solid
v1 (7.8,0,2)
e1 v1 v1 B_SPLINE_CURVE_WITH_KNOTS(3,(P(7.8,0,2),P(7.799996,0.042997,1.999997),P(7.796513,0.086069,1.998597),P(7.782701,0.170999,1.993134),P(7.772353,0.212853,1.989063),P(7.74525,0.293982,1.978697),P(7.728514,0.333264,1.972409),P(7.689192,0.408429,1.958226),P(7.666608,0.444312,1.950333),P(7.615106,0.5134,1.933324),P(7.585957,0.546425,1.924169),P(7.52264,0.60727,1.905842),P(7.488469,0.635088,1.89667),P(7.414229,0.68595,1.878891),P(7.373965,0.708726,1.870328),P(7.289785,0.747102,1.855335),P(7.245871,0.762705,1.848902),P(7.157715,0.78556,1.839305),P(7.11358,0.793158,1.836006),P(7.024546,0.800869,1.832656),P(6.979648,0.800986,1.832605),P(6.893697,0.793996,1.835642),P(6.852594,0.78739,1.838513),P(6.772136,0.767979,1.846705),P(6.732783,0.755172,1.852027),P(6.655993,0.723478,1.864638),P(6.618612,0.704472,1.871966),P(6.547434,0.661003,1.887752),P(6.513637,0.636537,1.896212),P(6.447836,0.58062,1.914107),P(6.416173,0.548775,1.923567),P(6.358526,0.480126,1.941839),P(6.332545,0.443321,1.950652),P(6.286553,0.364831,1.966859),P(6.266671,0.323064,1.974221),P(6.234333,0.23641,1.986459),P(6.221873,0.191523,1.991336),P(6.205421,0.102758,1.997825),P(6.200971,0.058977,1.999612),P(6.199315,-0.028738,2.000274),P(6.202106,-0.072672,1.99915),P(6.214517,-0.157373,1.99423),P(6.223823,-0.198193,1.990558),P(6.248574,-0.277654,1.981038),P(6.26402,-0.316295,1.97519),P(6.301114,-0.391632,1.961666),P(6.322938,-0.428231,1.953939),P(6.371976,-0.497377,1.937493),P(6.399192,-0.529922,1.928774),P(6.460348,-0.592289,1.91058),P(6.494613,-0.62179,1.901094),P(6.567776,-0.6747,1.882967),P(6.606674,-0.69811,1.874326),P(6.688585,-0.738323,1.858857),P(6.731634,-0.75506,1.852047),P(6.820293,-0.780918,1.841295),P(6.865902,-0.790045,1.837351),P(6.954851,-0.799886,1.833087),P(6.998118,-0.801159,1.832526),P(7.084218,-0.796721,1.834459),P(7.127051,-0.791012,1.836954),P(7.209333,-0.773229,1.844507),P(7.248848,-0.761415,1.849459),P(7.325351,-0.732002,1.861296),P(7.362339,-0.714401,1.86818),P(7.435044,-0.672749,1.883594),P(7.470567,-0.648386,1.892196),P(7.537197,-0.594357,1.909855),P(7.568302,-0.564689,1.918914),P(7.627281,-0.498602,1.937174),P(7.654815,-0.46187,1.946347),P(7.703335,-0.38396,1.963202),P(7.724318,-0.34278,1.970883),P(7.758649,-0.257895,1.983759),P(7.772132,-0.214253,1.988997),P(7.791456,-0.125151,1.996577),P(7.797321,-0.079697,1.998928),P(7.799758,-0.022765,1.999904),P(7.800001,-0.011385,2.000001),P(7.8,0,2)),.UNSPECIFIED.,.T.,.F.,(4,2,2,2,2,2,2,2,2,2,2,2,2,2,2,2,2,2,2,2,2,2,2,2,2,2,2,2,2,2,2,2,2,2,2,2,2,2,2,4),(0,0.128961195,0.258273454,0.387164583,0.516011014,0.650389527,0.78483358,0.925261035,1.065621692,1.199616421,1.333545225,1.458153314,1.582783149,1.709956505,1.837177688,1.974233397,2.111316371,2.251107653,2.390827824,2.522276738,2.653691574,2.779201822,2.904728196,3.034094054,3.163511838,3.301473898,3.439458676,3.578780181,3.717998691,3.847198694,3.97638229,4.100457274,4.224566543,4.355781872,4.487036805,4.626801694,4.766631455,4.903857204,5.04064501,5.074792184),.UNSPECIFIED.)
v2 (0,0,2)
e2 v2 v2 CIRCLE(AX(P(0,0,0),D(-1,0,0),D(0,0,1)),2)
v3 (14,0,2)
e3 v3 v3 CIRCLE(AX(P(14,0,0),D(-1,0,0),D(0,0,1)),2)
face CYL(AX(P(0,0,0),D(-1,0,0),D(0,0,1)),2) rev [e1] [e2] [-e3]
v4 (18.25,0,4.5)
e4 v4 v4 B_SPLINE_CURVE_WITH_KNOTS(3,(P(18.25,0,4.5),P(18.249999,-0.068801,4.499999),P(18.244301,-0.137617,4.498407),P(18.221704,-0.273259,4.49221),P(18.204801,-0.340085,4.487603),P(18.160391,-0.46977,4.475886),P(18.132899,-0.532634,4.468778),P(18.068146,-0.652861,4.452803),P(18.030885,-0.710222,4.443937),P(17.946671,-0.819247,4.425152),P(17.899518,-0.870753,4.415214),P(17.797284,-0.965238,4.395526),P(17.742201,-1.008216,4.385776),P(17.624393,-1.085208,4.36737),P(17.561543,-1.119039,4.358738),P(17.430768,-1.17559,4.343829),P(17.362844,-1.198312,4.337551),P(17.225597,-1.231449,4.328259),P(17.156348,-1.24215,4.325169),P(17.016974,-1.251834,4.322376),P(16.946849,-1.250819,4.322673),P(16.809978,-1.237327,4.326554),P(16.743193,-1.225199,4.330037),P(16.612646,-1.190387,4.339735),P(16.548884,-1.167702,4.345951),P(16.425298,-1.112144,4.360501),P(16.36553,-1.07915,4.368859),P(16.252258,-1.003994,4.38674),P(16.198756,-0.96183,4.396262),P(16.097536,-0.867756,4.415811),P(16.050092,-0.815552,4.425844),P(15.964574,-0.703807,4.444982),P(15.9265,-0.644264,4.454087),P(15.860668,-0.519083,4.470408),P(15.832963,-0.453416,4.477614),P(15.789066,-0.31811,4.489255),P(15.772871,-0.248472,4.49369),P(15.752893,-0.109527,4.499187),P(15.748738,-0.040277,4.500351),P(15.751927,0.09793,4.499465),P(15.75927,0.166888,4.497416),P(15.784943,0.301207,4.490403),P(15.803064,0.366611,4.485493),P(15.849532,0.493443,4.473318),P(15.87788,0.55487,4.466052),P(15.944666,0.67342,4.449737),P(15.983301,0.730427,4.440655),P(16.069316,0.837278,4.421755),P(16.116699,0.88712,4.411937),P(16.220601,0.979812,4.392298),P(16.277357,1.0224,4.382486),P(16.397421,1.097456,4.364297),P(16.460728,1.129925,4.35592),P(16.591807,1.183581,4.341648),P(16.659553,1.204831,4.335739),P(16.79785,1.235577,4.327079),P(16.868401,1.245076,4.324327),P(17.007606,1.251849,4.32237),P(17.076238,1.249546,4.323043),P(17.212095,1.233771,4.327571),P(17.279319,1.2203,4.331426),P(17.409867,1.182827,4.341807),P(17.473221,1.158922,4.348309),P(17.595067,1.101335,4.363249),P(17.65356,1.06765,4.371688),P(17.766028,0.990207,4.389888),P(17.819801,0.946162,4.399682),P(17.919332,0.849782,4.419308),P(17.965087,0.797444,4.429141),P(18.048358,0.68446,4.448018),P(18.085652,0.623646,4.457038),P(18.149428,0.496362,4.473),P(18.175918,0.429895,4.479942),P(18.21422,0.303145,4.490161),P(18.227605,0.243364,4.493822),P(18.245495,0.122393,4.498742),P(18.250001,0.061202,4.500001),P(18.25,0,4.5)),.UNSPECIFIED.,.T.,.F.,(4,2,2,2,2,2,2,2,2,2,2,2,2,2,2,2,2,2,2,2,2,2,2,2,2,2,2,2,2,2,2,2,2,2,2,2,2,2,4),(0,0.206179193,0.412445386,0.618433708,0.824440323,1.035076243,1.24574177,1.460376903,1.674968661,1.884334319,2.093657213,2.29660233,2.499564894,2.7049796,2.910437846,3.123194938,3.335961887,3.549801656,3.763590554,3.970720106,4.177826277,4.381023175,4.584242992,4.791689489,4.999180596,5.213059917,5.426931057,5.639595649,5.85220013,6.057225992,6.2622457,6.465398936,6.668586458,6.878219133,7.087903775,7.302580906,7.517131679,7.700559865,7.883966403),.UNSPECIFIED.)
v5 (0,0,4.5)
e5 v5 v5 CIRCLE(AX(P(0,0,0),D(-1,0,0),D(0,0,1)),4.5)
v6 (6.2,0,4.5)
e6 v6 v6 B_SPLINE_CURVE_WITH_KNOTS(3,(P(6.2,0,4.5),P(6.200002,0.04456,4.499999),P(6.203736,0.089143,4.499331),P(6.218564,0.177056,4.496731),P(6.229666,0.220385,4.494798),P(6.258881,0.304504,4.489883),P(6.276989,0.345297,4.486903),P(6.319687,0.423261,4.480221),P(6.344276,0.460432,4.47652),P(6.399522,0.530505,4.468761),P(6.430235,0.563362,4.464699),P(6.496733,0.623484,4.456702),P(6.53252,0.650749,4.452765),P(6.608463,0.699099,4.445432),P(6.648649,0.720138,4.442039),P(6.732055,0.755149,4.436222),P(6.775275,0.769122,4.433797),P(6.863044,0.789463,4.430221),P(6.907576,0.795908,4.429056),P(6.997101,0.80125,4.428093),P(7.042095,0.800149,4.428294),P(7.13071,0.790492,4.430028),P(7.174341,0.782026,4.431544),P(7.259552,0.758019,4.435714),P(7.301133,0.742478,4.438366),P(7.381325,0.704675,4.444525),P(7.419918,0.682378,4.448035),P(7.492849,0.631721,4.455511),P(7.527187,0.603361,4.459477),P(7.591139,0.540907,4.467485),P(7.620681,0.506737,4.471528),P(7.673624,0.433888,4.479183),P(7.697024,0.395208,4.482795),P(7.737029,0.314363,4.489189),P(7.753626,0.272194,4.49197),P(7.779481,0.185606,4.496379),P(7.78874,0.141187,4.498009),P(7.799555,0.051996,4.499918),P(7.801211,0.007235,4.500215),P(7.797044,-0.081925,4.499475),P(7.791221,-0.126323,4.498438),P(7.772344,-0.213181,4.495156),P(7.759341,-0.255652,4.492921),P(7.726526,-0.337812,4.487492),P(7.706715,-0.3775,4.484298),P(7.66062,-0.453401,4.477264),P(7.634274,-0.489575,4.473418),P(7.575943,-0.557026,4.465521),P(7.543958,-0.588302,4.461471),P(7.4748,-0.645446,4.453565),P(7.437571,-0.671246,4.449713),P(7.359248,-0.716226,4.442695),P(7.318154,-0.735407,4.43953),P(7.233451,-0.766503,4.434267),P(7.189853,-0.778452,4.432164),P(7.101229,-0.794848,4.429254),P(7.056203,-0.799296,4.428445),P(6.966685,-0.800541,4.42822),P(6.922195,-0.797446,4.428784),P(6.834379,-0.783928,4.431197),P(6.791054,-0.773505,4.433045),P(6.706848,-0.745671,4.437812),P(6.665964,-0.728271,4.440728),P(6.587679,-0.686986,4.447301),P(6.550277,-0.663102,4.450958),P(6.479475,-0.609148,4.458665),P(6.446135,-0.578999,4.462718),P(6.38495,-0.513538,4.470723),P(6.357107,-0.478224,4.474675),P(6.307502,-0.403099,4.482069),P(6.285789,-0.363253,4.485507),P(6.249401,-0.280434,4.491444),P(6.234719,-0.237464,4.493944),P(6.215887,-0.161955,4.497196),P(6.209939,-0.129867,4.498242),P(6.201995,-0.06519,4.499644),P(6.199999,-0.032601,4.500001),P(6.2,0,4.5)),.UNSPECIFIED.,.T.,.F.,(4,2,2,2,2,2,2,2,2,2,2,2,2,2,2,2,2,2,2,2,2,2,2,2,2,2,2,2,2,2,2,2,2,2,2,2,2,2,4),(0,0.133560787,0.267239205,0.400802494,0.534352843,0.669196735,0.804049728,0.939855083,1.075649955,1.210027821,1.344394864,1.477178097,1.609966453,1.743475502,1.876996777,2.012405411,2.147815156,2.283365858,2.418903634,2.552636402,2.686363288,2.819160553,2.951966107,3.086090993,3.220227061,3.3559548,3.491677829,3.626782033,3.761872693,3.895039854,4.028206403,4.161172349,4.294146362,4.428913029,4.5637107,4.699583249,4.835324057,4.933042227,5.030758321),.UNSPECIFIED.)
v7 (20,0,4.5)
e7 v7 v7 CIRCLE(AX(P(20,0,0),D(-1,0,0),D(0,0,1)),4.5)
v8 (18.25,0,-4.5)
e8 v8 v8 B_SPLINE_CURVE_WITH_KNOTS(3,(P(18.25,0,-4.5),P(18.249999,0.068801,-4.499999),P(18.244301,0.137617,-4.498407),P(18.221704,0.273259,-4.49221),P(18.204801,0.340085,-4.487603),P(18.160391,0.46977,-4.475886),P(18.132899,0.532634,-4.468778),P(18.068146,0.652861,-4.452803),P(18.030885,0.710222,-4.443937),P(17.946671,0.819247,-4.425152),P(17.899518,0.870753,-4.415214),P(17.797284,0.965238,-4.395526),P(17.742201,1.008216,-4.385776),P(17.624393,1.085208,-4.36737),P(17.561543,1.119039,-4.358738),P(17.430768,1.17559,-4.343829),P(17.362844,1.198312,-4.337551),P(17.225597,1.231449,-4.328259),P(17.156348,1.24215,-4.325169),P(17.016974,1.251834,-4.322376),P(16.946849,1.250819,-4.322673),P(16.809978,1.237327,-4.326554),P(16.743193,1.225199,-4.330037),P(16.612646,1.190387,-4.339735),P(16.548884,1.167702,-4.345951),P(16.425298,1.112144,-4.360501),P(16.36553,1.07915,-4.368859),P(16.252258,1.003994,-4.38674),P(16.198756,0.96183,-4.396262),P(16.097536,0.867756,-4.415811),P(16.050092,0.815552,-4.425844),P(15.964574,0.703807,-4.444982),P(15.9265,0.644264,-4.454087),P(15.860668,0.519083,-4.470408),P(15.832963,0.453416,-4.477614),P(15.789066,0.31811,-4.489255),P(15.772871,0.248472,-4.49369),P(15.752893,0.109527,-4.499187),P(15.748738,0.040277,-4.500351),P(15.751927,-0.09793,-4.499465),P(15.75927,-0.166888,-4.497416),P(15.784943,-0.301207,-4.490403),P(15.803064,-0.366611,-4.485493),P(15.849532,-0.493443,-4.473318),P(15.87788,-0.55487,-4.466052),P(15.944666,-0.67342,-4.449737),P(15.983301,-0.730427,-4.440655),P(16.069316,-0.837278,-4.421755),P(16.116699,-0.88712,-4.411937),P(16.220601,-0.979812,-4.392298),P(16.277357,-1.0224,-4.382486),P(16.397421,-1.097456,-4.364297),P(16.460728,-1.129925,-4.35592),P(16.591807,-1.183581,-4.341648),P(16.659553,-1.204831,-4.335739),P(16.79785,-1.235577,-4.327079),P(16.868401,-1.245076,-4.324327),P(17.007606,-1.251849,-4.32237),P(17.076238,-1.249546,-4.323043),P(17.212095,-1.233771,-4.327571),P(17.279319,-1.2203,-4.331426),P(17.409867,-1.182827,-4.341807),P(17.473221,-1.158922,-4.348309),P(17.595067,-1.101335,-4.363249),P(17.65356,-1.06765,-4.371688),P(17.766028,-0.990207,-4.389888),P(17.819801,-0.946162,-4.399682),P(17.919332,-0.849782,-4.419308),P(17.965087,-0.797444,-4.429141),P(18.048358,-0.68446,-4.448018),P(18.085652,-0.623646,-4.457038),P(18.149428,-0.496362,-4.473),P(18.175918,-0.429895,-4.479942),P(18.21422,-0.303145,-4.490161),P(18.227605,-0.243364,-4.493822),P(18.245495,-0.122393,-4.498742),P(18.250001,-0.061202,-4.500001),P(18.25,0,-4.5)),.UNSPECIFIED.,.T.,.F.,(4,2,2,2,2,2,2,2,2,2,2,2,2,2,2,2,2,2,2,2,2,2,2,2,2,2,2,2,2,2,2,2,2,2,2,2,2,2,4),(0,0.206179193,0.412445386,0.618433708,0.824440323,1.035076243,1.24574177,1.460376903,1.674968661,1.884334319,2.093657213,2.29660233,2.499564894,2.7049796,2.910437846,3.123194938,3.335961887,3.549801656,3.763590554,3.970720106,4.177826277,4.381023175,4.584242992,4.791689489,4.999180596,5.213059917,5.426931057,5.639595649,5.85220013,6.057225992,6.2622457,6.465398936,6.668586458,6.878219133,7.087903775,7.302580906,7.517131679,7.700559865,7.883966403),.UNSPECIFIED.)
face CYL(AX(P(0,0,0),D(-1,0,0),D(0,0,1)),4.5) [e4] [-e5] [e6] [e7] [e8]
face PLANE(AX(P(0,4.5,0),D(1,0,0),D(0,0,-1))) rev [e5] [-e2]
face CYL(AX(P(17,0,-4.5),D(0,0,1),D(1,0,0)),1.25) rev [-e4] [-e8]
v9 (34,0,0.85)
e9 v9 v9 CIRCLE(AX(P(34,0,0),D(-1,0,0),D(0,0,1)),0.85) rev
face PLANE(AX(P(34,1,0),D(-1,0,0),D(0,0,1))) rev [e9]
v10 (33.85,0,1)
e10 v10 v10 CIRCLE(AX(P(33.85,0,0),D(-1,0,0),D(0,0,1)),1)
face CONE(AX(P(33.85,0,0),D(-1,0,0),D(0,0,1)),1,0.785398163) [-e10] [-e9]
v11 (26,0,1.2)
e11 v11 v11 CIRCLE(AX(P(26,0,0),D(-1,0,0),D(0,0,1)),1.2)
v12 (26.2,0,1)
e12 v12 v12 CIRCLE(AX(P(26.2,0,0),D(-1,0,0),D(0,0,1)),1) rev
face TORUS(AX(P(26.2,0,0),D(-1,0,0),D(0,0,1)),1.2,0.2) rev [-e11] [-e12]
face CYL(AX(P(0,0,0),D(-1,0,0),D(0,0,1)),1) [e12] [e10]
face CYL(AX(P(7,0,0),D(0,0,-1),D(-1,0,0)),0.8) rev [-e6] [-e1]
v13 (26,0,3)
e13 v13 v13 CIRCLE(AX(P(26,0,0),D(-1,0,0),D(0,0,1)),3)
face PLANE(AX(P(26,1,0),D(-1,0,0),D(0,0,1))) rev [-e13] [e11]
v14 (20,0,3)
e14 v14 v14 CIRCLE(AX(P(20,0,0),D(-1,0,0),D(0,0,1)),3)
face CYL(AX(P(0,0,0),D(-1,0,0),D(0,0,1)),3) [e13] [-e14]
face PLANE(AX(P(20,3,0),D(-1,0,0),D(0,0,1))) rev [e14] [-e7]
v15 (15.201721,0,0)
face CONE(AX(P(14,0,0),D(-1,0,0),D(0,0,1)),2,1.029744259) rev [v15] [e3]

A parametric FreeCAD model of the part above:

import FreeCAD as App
import Part
import Sketcher

V = App.Vector
Q = App.Units.Quantity


def edges_at(feature, points):
    """Names of the edges that pass closest to the given points."""
    edges = feature.Shape.Edges
    near = lambda p: min(range(len(edges)), key=lambda i: edges[i].distToShape(Part.Vertex(*p))[0])
    return sorted({f"Edge{near(p) + 1}" for p in points})

doc = App.newDocument("Part")
body = doc.addObject("PartDesign::Body", "Body")

# Sketch on XY plane
sketch1 = doc.addObject("Sketcher::SketchObject", "Sketch")
body.addObject(sketch1)
sketch1.AttachmentSupport = (doc.XY_Plane, [""])
sketch1.MapMode = "FlatFace"
sketch1.addGeometry([
    Part.LineSegment(V(0, 4.5, 0), V(0, 2, 0)),  # 0
    Part.LineSegment(V(0, 2, 0), V(14, 2, 0)),  # 1
    Part.LineSegment(V(14, 2, 0), V(15.2, 0, 0)),  # 2
    Part.LineSegment(V(15.2, 0, 0), V(34, 0, 0)),  # 3
    Part.LineSegment(V(34, 0, 0), V(34, 1, 0)),  # 4
    Part.LineSegment(V(34, 1, 0), V(26, 1, 0)),  # 5
    Part.LineSegment(V(26, 1, 0), V(26, 3, 0)),  # 6
    Part.LineSegment(V(26, 3, 0), V(20, 3, 0)),  # 7
    Part.LineSegment(V(20, 3, 0), V(20, 4.5, 0)),  # 8
    Part.LineSegment(V(20, 4.5, 0), V(0, 4.5, 0)),  # 9
], False)
sketch1.addConstraint([
    Sketcher.Constraint("Coincident", 0, 2, 1, 1),
    Sketcher.Constraint("Coincident", 1, 2, 2, 1),
    Sketcher.Constraint("Coincident", 2, 2, 3, 1),
    Sketcher.Constraint("Coincident", 3, 2, 4, 1),
    Sketcher.Constraint("Coincident", 4, 2, 5, 1),
    Sketcher.Constraint("Coincident", 5, 2, 6, 1),
    Sketcher.Constraint("Coincident", 6, 2, 7, 1),
    Sketcher.Constraint("Coincident", 7, 2, 8, 1),
    Sketcher.Constraint("Coincident", 8, 2, 9, 1),
    Sketcher.Constraint("Coincident", 9, 2, 0, 1),
    Sketcher.Constraint("Vertical", 0),
    Sketcher.Constraint("Horizontal", 1),
    Sketcher.Constraint("Horizontal", 3),
    Sketcher.Constraint("Vertical", 4),
    Sketcher.Constraint("Horizontal", 5),
    Sketcher.Constraint("Vertical", 6),
    Sketcher.Constraint("Horizontal", 7),
    Sketcher.Constraint("Vertical", 8),
    Sketcher.Constraint("Horizontal", 9),
    Sketcher.Constraint("PointOnObject", 0, 2, -2),
    Sketcher.Constraint("PointOnObject", 2, 2, -1),
    Sketcher.Constraint("DistanceX", 1, 1, 1, 2, Q("14 mm")),
    Sketcher.Constraint("DistanceX", 5, 2, 5, 1, Q("8 mm")),
    Sketcher.Constraint("DistanceX", 7, 2, 7, 1, Q("6 mm")),
    Sketcher.Constraint("DistanceX", 9, 2, 9, 1, Q("20 mm")),
    Sketcher.Constraint("DistanceY", 4, 1, 4, 2, Q("1 mm")),
    Sketcher.Constraint("DistanceY", 6, 1, 6, 2, Q("2 mm")),
    Sketcher.Constraint("Angle", 2, Q("-59 deg")),
    Sketcher.Constraint("DistanceY", 0, 2, 0, 1, Q("2.5 mm")),
    Sketcher.Constraint("DistanceY", 8, 1, 8, 2, Q("1.5 mm")),
])
revolution = doc.addObject("PartDesign::Revolution", "Revolution")
body.addObject(revolution)
revolution.Profile = sketch1
revolution.ReferenceAxis = (sketch1, ["H_Axis"])
revolution.Angle = 360
doc.recompute()

chamfer = doc.addObject("PartDesign::Chamfer", "Chamfer")
body.addObject(chamfer)
chamfer.Base = (revolution, edges_at(revolution, [(34, -1, 0)]))
chamfer.Size = 0.15

# Sketch on YZ plane
sketch2 = doc.addObject("Sketcher::SketchObject", "Sketch001")
body.addObject(sketch2)
sketch2.AttachmentSupport = (doc.YZ_Plane, [""])
sketch2.MapMode = "FlatFace"
sketch2.AttachmentOffset = App.Placement(V(0, 0, 7), App.Rotation())
sketch2.addGeometry([
    Part.LineSegment(V(0, 4.5, 0), V(0, 0, 0)),
    Part.LineSegment(V(0, 0, 0), V(0.8, 0, 0)),
    Part.LineSegment(V(0.8, 0, 0), V(0.8, 4.5, 0)),
    Part.LineSegment(V(0.8, 4.5, 0), V(0, 4.5, 0)),
], False)
sketch2.addConstraint([
    Sketcher.Constraint("Coincident", 0, 2, 1, 1),
    Sketcher.Constraint("Coincident", 1, 2, 2, 1),
    Sketcher.Constraint("Coincident", 2, 2, 3, 1),
    Sketcher.Constraint("Coincident", 3, 2, 0, 1),
    Sketcher.Constraint("Vertical", 0),
    Sketcher.Constraint("Horizontal", 1),
    Sketcher.Constraint("Vertical", 2),
    Sketcher.Constraint("Horizontal", 3),
    Sketcher.Constraint("Coincident", 0, 2, -1, 1),
    Sketcher.Constraint("DistanceX", 1, 1, 1, 2, Q("0.8 mm")),
    Sketcher.Constraint("DistanceY", 0, 2, 0, 1, Q("4.5 mm")),
])
groove = doc.addObject("PartDesign::Groove", "Groove")
body.addObject(groove)
groove.Profile = sketch2
groove.ReferenceAxis = (sketch2, ["V_Axis"])
groove.Angle = 360

# Sketch on XY plane
sketch3 = doc.addObject("Sketcher::SketchObject", "Sketch002")
body.addObject(sketch3)
sketch3.AttachmentSupport = (doc.XY_Plane, [""])
sketch3.MapMode = "FlatFace"
sketch3.addGeometry(Part.Circle(V(17, 0, 0), V(0, 0, 1), 1.2), False)
sketch3.addConstraint([
    Sketcher.Constraint("PointOnObject", 0, 3, -1),
    Sketcher.Constraint("Diameter", 0, Q("2.5 mm")),
    Sketcher.Constraint("DistanceX", -1, 1, 0, 3, Q("17 mm")),
])
pocket1 = doc.addObject("PartDesign::Pocket", "Pocket")
body.addObject(pocket1)
pocket1.Profile = sketch3
pocket1.Type = "ThroughAll"
pocket1.Midplane = True
doc.recompute()

fillet = doc.addObject("PartDesign::Fillet", "Fillet")
body.addObject(fillet)
fillet.Base = (pocket1, edges_at(pocket1, [(26, -1, 0)]))
fillet.Radius = 0.2

doc.recompute()
